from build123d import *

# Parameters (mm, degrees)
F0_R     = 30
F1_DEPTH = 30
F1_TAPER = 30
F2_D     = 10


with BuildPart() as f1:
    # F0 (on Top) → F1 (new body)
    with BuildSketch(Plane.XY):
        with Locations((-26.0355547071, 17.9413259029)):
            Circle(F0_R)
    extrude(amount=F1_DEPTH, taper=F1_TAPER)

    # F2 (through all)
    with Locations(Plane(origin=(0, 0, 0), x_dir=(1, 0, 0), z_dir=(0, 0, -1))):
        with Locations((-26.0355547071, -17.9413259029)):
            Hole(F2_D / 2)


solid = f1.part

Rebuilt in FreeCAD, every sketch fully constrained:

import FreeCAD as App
import Part
import Sketcher
from FreeCAD import Vector

doc = App.newDocument("Part")
body = doc.addObject("PartDesign::Body", "Body")

# Sketch on XY plane
sketch1 = body.newObject("Sketcher::SketchObject", "Sketch")
sketch1.AttachmentSupport = (doc.getObject("XY_Plane"), [""])
sketch1.MapMode = "FlatFace"
sketch1.addGeometry(Part.Circle(Vector(-26.035555, 17.941326, 0), Vector(0, 0, 1), 30), False)
sketch1.addConstraint(Sketcher.Constraint("Diameter", 0, 60.0))
sketch1.addConstraint(Sketcher.Constraint("DistanceX", 0, 3, -1, 1, 26.035555))
sketch1.addConstraint(Sketcher.Constraint("DistanceY", -1, 1, 0, 3, 17.941326))
pad1 = body.newObject("PartDesign::Pad", "Pad")
pad1.Profile = sketch1
pad1.Length = 30
pad1.TaperAngle = -30

# Sketch on XY plane
sketch2 = body.newObject("Sketcher::SketchObject", "Sketch001")
sketch2.AttachmentSupport = (doc.getObject("XY_Plane"), [""])
sketch2.MapMode = "FlatFace"
sketch2.addGeometry(Part.Circle(Vector(-26.035555, 17.941326, 0), Vector(0, 0, 1), 5), False)
sketch2.addConstraint(Sketcher.Constraint("Diameter", 0, 10.0))
sketch2.addConstraint(Sketcher.Constraint("DistanceX", 0, 3, -1, 1, 26.035555))
sketch2.addConstraint(Sketcher.Constraint("DistanceY", -1, 1, 0, 3, 17.941326))
doc.recompute()
hole = body.newObject("PartDesign::Hole", "Hole")
hole.Profile = sketch2
hole.ThreadType = "None"
hole.Diameter = 10
hole.DepthType = "ThroughAll"
hole.Reversed = True

doc.recompute()
